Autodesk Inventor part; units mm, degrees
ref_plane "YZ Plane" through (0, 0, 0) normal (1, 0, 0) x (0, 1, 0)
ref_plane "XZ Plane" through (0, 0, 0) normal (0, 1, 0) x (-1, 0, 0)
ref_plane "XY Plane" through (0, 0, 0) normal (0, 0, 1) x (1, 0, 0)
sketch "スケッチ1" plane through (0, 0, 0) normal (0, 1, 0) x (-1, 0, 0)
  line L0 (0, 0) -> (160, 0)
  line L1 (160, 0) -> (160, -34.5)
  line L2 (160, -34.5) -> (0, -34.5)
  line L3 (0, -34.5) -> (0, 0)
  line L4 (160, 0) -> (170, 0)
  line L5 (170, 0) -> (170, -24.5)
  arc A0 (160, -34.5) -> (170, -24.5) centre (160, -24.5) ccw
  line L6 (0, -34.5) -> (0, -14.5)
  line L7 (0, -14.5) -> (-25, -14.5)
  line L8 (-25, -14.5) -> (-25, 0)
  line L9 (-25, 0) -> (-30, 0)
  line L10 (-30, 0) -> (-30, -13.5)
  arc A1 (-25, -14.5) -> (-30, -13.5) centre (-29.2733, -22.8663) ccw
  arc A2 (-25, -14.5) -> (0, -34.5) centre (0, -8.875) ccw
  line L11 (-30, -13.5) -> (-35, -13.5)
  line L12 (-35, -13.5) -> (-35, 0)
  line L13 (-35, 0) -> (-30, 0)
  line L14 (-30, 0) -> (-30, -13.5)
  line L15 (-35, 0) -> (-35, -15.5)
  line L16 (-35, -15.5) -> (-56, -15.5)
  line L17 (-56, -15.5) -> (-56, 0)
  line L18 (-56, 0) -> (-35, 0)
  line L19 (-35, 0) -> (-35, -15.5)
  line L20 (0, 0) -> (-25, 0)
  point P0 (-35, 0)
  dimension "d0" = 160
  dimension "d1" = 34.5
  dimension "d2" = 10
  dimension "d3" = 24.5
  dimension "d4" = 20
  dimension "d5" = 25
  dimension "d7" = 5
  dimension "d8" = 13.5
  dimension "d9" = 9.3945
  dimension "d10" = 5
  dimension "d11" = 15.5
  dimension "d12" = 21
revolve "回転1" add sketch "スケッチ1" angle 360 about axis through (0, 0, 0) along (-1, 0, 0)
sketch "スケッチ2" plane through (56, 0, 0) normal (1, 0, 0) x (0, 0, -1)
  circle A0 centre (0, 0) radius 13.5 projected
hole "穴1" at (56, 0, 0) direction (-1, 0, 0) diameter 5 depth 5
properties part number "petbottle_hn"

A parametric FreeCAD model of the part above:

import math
import FreeCAD as App
import Part
import Sketcher
Q = App.Units.Quantity

doc = App.newDocument("Part")
body = doc.addObject("PartDesign::Body", "Body")

# Sketch on XZ plane
sketch1 = body.newObject("Sketcher::SketchObject", "Sketch")
sketch1.AttachmentSupport = (doc.getObject("XZ_Plane"), [""])
sketch1.MapMode = "FlatFace"
sketch1.addGeometry([
    Part.LineSegment(App.Vector(56, 0, 0), App.Vector(56, -15.5, 0)),  # 0
    Part.LineSegment(App.Vector(56, -15.5, 0), App.Vector(35, -15.5, 0)),  # 1
    Part.LineSegment(App.Vector(35, -15.5, 0), App.Vector(35, -13.5, 0)),  # 2
    Part.LineSegment(App.Vector(35, -13.5, 0), App.Vector(30, -13.5, 0)),  # 3
    Part.ArcOfCircle(Part.Circle(App.Vector(29.2733, -22.8663, 0), App.Vector(0, 0, 1), 9.39447), math.radians(85.563499), math.radians(117.056826)),  # 4
    Part.ArcOfCircle(Part.Circle(App.Vector(0, -8.875, 0), App.Vector(0, 0, 1), 25.625), math.radians(-90), math.radians(-12.680383)),  # 5
    Part.LineSegment(App.Vector(0, -34.5, 0), App.Vector(-160, -34.5, 0)),  # 6
    Part.ArcOfCircle(Part.Circle(App.Vector(-160, -24.5, 0), App.Vector(0, 0, 1), 10), math.radians(180), math.radians(270)),  # 7
    Part.LineSegment(App.Vector(-170, -24.5, 0), App.Vector(-170, 0, 0)),  # 8
    Part.LineSegment(App.Vector(-170, 0, 0), App.Vector(56, 0, 0)),  # 9
], False)
sketch1.addConstraint([
    Sketcher.Constraint("Coincident", 0, 2, 1, 1),
    Sketcher.Constraint("Coincident", 1, 2, 2, 1),
    Sketcher.Constraint("Coincident", 2, 2, 3, 1),
    Sketcher.Constraint("Coincident", 3, 2, 4, 1),
    Sketcher.Constraint("Coincident", 4, 2, 5, 2),
    Sketcher.Constraint("Tangent", 5, 1, 6, 1),
    Sketcher.Constraint("Tangent", 6, 2, 7, 2),
    Sketcher.Constraint("Tangent", 7, 1, 8, 1),
    Sketcher.Constraint("Coincident", 8, 2, 9, 1),
    Sketcher.Constraint("Coincident", 9, 2, 0, 1),
    Sketcher.Constraint("Vertical", 0),
    Sketcher.Constraint("Horizontal", 1),
    Sketcher.Constraint("Vertical", 2),
    Sketcher.Constraint("Horizontal", 3),
    Sketcher.Constraint("Horizontal", 6),
    Sketcher.Constraint("Vertical", 8),
    Sketcher.Constraint("Horizontal", 9),
    Sketcher.Constraint("PointOnObject", 5, 3, -2),
    Sketcher.Constraint("PointOnObject", 8, 2, -1),
    Sketcher.Constraint("Radius", 7, Q("10 mm")),
    Sketcher.Constraint("DistanceX", 1, 2, 1, 1, Q("21 mm")),
    Sketcher.Constraint("DistanceX", 3, 2, 3, 1, Q("5 mm")),
    Sketcher.Constraint("DistanceX", 6, 2, 6, 1, Q("160 mm")),
    Sketcher.Constraint("DistanceY", 0, 2, 0, 1, Q("15.5 mm")),
    Sketcher.Constraint("DistanceY", 8, 1, 8, 2, Q("24.5 mm")),
    Sketcher.Constraint("DistanceX", -1, 1, 4, 2, Q("25 mm")),
    Sketcher.Constraint("DistanceX", 4, 2, 3, 2, Q("5 mm")),
    Sketcher.Constraint("DistanceY", 5, 1, 4, 2, Q("20 mm")),
    Sketcher.Constraint("DistanceY", 5, 1, 3, 2, Q("21 mm")),
    Sketcher.Constraint("Radius", 4, Q("9.3945 mm")),
])
revolution = body.newObject("PartDesign::Revolution", "Revolution")
revolution.Profile = sketch1
revolution.ReferenceAxis = (sketch1, ["H_Axis"])
revolution.Angle = 360

# Sketch on YZ plane
sketch2 = body.newObject("Sketcher::SketchObject", "Sketch001")
sketch2.AttachmentSupport = (doc.getObject("YZ_Plane"), [""])
sketch2.MapMode = "FlatFace"
sketch2.AttachmentOffset = App.Placement(App.Vector(0, 0, 56), App.Rotation())
sketch2.addGeometry(Part.Circle(App.Vector(0, 0, 0), App.Vector(0, 0, 1), 2.5), False)
sketch2.addConstraint([
    Sketcher.Constraint("Coincident", 0, 3, -1, 1),
    Sketcher.Constraint("Diameter", 0, Q("5 mm")),
])
doc.recompute()
hole = body.newObject("PartDesign::Hole", "Hole")
hole.Profile = sketch2
hole.ThreadType = "None"
hole.Diameter = 5
hole.DepthType = "Dimension"
hole.Depth = 5
hole.DrillPoint = "Flat"

doc.recompute()
